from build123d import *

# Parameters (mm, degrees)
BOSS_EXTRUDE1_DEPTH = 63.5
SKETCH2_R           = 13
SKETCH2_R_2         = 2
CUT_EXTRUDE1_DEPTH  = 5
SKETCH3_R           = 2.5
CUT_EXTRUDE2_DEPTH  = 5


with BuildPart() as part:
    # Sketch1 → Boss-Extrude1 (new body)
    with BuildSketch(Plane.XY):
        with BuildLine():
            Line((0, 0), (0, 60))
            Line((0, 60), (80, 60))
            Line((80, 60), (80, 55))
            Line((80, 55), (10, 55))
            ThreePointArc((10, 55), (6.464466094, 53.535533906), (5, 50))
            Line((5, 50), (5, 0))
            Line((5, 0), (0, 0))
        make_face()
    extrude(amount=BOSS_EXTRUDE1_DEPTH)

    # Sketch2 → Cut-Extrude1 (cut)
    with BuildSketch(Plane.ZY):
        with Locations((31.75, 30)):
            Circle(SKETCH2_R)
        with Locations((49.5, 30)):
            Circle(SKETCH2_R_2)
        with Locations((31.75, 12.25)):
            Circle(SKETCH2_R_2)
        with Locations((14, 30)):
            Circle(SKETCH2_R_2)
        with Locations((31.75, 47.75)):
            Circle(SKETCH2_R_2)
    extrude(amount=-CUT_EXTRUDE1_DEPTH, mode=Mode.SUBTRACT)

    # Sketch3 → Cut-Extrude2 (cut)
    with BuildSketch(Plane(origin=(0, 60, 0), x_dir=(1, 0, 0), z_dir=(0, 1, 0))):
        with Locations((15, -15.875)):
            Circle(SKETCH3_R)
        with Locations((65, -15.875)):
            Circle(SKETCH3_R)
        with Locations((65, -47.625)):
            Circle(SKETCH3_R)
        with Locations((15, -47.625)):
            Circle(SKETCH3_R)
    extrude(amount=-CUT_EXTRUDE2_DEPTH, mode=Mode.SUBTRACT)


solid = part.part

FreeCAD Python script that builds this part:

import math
import FreeCAD as App
import Part
import Sketcher
Q = App.Units.Quantity

doc = App.newDocument("Part")
params = doc.addObject("Spreadsheet::Sheet", "Params")
for row, (alias, value) in enumerate([
    ("sketch1_radius", "5 mm"),
    ("sketch1_width", "5 mm"),
    ("sketch1_width2", "70 mm"),
    ("sketch1_height", "60 mm"),
    ("pad1_length", "63.5 mm"),
    ("sketch2_diameter", "26 mm"),
    ("sketch2_diameter2", "4 mm"),
    ("pocket1_length", "5 mm"),
    ("sketch3_diameter", "5 mm"),
    ("pocket2_length", "5 mm"),
], start=1):
    params.set(f"A{row}", alias)
    params.set(f"B{row}", "=" + value)
    params.setAlias(f"B{row}", alias)

body = doc.addObject("PartDesign::Body", "Body")

# Sketch on XY plane
sketch1 = doc.addObject("Sketcher::SketchObject", "Sketch")
body.addObject(sketch1)
sketch1.AttachmentSupport = (doc.XY_Plane, [""])
sketch1.MapMode = "FlatFace"
sketch1.addGeometry(Part.LineSegment(App.Vector(0, 60, 0), App.Vector(0, 0, 0)), False)
sketch1.addGeometry(Part.LineSegment(App.Vector(0, 0, 0), App.Vector(5, 0, 0)), False)
sketch1.addGeometry(Part.LineSegment(App.Vector(5, 0, 0), App.Vector(5, 50, 0)), False)
sketch1.addGeometry(Part.ArcOfCircle(Part.Circle(App.Vector(10, 50, 0), App.Vector(0, 0, 1), 5), math.radians(90), math.radians(180)), False)
sketch1.addGeometry(Part.LineSegment(App.Vector(10, 55, 0), App.Vector(80, 55, 0)), False)
sketch1.addGeometry(Part.LineSegment(App.Vector(80, 55, 0), App.Vector(80, 60, 0)), False)
sketch1.addGeometry(Part.LineSegment(App.Vector(80, 60, 0), App.Vector(0, 60, 0)), False)
sketch1.addConstraint(Sketcher.Constraint("Coincident", 0, 2, 1, 1))
sketch1.addConstraint(Sketcher.Constraint("Coincident", 1, 2, 2, 1))
sketch1.addConstraint(Sketcher.Constraint("Tangent", 2, 2, 3, 2))
sketch1.addConstraint(Sketcher.Constraint("Tangent", 3, 1, 4, 1))
sketch1.addConstraint(Sketcher.Constraint("Coincident", 4, 2, 5, 1))
sketch1.addConstraint(Sketcher.Constraint("Coincident", 5, 2, 6, 1))
sketch1.addConstraint(Sketcher.Constraint("Coincident", 6, 2, 0, 1))
sketch1.addConstraint(Sketcher.Constraint("Vertical", 0))
sketch1.addConstraint(Sketcher.Constraint("Horizontal", 1))
sketch1.addConstraint(Sketcher.Constraint("Vertical", 2))
sketch1.addConstraint(Sketcher.Constraint("Horizontal", 4))
sketch1.addConstraint(Sketcher.Constraint("Vertical", 5))
sketch1.addConstraint(Sketcher.Constraint("Horizontal", 6))
sketch1.addConstraint(Sketcher.Constraint("Coincident", 0, 2, -1, 1))
sketch1.addConstraint(Sketcher.Constraint("Equal", 1, 5))
sketch1.addConstraint(Sketcher.Constraint("Radius", 3, Q("5 mm")))
sketch1.addConstraint(Sketcher.Constraint("DistanceX", 1, 1, 1, 2, Q("5 mm")))
sketch1.addConstraint(Sketcher.Constraint("DistanceX", 4, 1, 4, 2, Q("70 mm")))
sketch1.addConstraint(Sketcher.Constraint("DistanceY", 0, 2, 0, 1, Q("60 mm")))
sketch1.setExpression("Constraints[15]", "Params.sketch1_radius")
sketch1.setExpression("Constraints[16]", "Params.sketch1_width")
sketch1.setExpression("Constraints[17]", "Params.sketch1_width2")
sketch1.setExpression("Constraints[18]", "Params.sketch1_height")
pad1 = doc.addObject("PartDesign::Pad", "Pad")
body.addObject(pad1)
pad1.Profile = sketch1
pad1.setExpression("Length", "Params.pad1_length")

# Sketch on YZ plane
sketch2 = doc.addObject("Sketcher::SketchObject", "Sketch001")
body.addObject(sketch2)
sketch2.AttachmentSupport = (doc.YZ_Plane, [""])
sketch2.MapMode = "FlatFace"
sketch2.addGeometry(Part.Circle(App.Vector(30, 31.75, 0), App.Vector(0, 0, 1), 13), False)
sketch2.addGeometry(Part.Circle(App.Vector(30, 49.5, 0), App.Vector(0, 0, 1), 2), False)
sketch2.addGeometry(Part.Circle(App.Vector(12.25, 31.75, 0), App.Vector(0, 0, 1), 2), False)
sketch2.addGeometry(Part.Circle(App.Vector(30, 14, 0), App.Vector(0, 0, 1), 2), False)
sketch2.addGeometry(Part.Circle(App.Vector(47.75, 31.75, 0), App.Vector(0, 0, 1), 2), False)
sketch2.addConstraint(Sketcher.Constraint("Equal", 1, 2))
sketch2.addConstraint(Sketcher.Constraint("Equal", 2, 3))
sketch2.addConstraint(Sketcher.Constraint("Equal", 3, 4))
sketch2.addConstraint(Sketcher.Constraint("Horizontal", 0, 3, 2, 3))
sketch2.addConstraint(Sketcher.Constraint("Horizontal", 2, 3, 4, 3))
sketch2.addConstraint(Sketcher.Constraint("Vertical", 0, 3, 1, 3))
sketch2.addConstraint(Sketcher.Constraint("Vertical", 1, 3, 3, 3))
sketch2.addConstraint(Sketcher.Constraint("Diameter", 0, Q("26 mm")))
sketch2.addConstraint(Sketcher.Constraint("Diameter", 1, Q("4 mm")))
sketch2.addConstraint(Sketcher.Constraint("DistanceX", -1, 1, 0, 3, Q("30 mm")))
sketch2.addConstraint(Sketcher.Constraint("DistanceY", -1, 1, 3, 3, Q("14 mm")))
sketch2.addConstraint(Sketcher.Constraint("DistanceY", -1, 1, 1, 3, Q("49.5 mm")))
sketch2.addConstraint(Sketcher.Constraint("DistanceX", 2, 3, 4, 3, Q("35.5 mm")))
sketch2.addConstraint(Sketcher.Constraint("DistanceY", -1, 1, 0, 3, Q("31.75 mm")))
sketch2.addConstraint(Sketcher.Constraint("DistanceX", -1, 1, 2, 3, Q("12.25 mm")))
sketch2.setExpression("Constraints[7]", "Params.sketch2_diameter")
sketch2.setExpression("Constraints[8]", "Params.sketch2_diameter2")
pocket1 = doc.addObject("PartDesign::Pocket", "Pocket")
body.addObject(pocket1)
pocket1.Profile = sketch2
pocket1.setExpression("Length", "Params.pocket1_length")
pocket1.Reversed = True

# Sketch on XZ plane
sketch3 = doc.addObject("Sketcher::SketchObject", "Sketch002")
body.addObject(sketch3)
sketch3.AttachmentSupport = (doc.XZ_Plane, [""])
sketch3.MapMode = "FlatFace"
sketch3.AttachmentOffset = App.Placement(App.Vector(0, 0, -60), App.Rotation())
sketch3.addGeometry(Part.Circle(App.Vector(15, 15.875, 0), App.Vector(0, 0, 1), 2.5), False)
sketch3.addGeometry(Part.Circle(App.Vector(65, 15.875, 0), App.Vector(0, 0, 1), 2.5), False)
sketch3.addGeometry(Part.Circle(App.Vector(65, 47.625, 0), App.Vector(0, 0, 1), 2.5), False)
sketch3.addGeometry(Part.Circle(App.Vector(15, 47.625, 0), App.Vector(0, 0, 1), 2.5), False)
sketch3.addConstraint(Sketcher.Constraint("Equal", 0, 1))
sketch3.addConstraint(Sketcher.Constraint("Equal", 1, 2))
sketch3.addConstraint(Sketcher.Constraint("Equal", 2, 3))
sketch3.addConstraint(Sketcher.Constraint("Horizontal", 0, 3, 1, 3))
sketch3.addConstraint(Sketcher.Constraint("Horizontal", 2, 3, 3, 3))
sketch3.addConstraint(Sketcher.Constraint("Vertical", 1, 3, 2, 3))
sketch3.addConstraint(Sketcher.Constraint("Vertical", 0, 3, 3, 3))
sketch3.addConstraint(Sketcher.Constraint("Diameter", 0, Q("5 mm")))
sketch3.addConstraint(Sketcher.Constraint("DistanceX", -1, 1, 0, 3, Q("15 mm")))
sketch3.addConstraint(Sketcher.Constraint("DistanceX", -1, 1, 1, 3, Q("65 mm")))
sketch3.addConstraint(Sketcher.Constraint("DistanceY", 1, 3, 2, 3, Q("31.75 mm")))
sketch3.addConstraint(Sketcher.Constraint("DistanceY", -1, 1, 0, 3, Q("15.875 mm")))
sketch3.setExpression("Constraints[7]", "Params.sketch3_diameter")
pocket2 = doc.addObject("PartDesign::Pocket", "Pocket001")
body.addObject(pocket2)
pocket2.Profile = sketch3
pocket2.setExpression("Length", "Params.pocket2_length")
pocket2.Reversed = True

doc.recompute()
